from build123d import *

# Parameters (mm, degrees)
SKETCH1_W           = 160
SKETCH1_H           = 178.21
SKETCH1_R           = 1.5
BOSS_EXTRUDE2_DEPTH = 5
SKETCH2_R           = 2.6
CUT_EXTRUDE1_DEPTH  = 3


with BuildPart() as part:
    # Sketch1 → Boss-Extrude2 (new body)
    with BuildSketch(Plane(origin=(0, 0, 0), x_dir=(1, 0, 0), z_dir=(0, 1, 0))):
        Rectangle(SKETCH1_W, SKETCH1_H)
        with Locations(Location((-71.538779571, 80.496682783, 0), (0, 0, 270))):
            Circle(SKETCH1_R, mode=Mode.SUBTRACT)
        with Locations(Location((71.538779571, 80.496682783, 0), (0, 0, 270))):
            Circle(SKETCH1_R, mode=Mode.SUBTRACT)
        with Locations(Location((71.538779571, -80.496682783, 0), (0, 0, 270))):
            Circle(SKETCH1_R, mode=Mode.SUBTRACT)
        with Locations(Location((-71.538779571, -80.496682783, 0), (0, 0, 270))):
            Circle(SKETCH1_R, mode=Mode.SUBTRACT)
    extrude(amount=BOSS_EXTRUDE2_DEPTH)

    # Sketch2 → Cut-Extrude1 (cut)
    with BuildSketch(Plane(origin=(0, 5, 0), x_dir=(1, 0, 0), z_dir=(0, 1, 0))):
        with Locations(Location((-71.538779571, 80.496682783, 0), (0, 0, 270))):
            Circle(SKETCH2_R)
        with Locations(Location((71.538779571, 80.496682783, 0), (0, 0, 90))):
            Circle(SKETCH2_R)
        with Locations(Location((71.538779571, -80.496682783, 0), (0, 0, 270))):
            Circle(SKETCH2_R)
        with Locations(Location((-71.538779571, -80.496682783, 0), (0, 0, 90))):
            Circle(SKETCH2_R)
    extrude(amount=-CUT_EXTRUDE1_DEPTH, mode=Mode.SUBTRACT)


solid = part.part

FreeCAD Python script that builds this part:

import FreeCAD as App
import Part
import Sketcher
from FreeCAD import Vector
Q = App.Units.Quantity

doc = App.newDocument("Part")
body = doc.addObject("PartDesign::Body", "Body")

sketch1 = body.newObject("Sketcher::SketchObject", "Sketch")
sketch1.AttachmentSupport = (doc.getObject("XZ_Plane"), [""])
sketch1.MapMode = "FlatFace"
sketch1.addGeometry(Part.LineSegment(Vector(-80, -89.1, 0), Vector(-80, 89.1, 0)), False)
sketch1.addGeometry(Part.LineSegment(Vector(-80, 89.1, 0), Vector(80, 89.1, 0)), False)
sketch1.addGeometry(Part.LineSegment(Vector(80, 89.1, 0), Vector(80, -89.1, 0)), False)
sketch1.addGeometry(Part.LineSegment(Vector(80, -89.1, 0), Vector(-80, -89.1, 0)), False)
sketch1.addGeometry(Part.Circle(Vector(-71.5, 80.5, 0), Vector(0, 0, 1), 1.5), False)
sketch1.addGeometry(Part.Circle(Vector(71.5, 80.5, 0), Vector(0, 0, 1), 1.5), False)
sketch1.addGeometry(Part.Circle(Vector(-71.5, -80.5, 0), Vector(0, 0, 1), 1.5), False)
sketch1.addGeometry(Part.Circle(Vector(71.5, -80.5, 0), Vector(0, 0, 1), 1.5), False)
sketch1.addConstraint(Sketcher.Constraint("Coincident", 0, 2, 1, 1))
sketch1.addConstraint(Sketcher.Constraint("Coincident", 1, 2, 2, 1))
sketch1.addConstraint(Sketcher.Constraint("Coincident", 2, 2, 3, 1))
sketch1.addConstraint(Sketcher.Constraint("Coincident", 3, 2, 0, 1))
sketch1.addConstraint(Sketcher.Constraint("Vertical", 0))
sketch1.addConstraint(Sketcher.Constraint("Horizontal", 1))
sketch1.addConstraint(Sketcher.Constraint("Vertical", 2))
sketch1.addConstraint(Sketcher.Constraint("Horizontal", 3))
sketch1.addConstraint(Sketcher.Constraint("Equal", 4, 5))
sketch1.addConstraint(Sketcher.Constraint("Equal", 5, 6))
sketch1.addConstraint(Sketcher.Constraint("Equal", 6, 7))
sketch1.addConstraint(Sketcher.Constraint("Symmetric", 5, 3, 6, 3, -1, 1))
sketch1.addConstraint(Sketcher.Constraint("Symmetric", 4, 3, 7, 3, -1, 1))
sketch1.addConstraint(Sketcher.Constraint("Symmetric", 0, 2, 2, 2, -1, 1))
sketch1.addConstraint(Sketcher.Constraint("Symmetric", 4, 3, 5, 3, -2))
sketch1.addConstraint(Sketcher.Constraint("Diameter", 4, Q("3 mm")))
sketch1.addConstraint(Sketcher.Constraint("DistanceX", 1, 1, 1, 2, Q("160 mm")))
sketch1.addConstraint(Sketcher.Constraint("DistanceY", 0, 1, 0, 2, Q("178.21 mm")))
sketch1.addConstraint(Sketcher.Constraint("DistanceX", 4, 3, -1, 1, Q("71.53878 mm")))
sketch1.addConstraint(Sketcher.Constraint("DistanceY", -1, 1, 4, 3, Q("80.496683 mm")))
pad1 = body.newObject("PartDesign::Pad", "Pad")
pad1.Profile = sketch1
pad1.Length = 5
pad1.Reversed = True

sketch2 = body.newObject("Sketcher::SketchObject", "Sketch001")
sketch2.AttachmentSupport = (doc.getObject("XZ_Plane"), [""])
sketch2.MapMode = "FlatFace"
sketch2.AttachmentOffset = App.Placement(Vector(0, 0, -5), App.Rotation())
sketch2.addGeometry(Part.Circle(Vector(-71.5, -80.5, 0), Vector(0, 0, 1), 2.6), False)
sketch2.addGeometry(Part.Circle(Vector(71.5, -80.5, 0), Vector(0, 0, 1), 2.6), False)
sketch2.addGeometry(Part.Circle(Vector(71.5, 80.5, 0), Vector(0, 0, 1), 2.6), False)
sketch2.addGeometry(Part.Circle(Vector(-71.5, 80.5, 0), Vector(0, 0, 1), 2.6), False)
sketch2.addConstraint(Sketcher.Constraint("Equal", 0, 1))
sketch2.addConstraint(Sketcher.Constraint("Equal", 1, 2))
sketch2.addConstraint(Sketcher.Constraint("Equal", 2, 3))
sketch2.addConstraint(Sketcher.Constraint("Symmetric", 0, 3, 2, 3, -1, 1))
sketch2.addConstraint(Sketcher.Constraint("Symmetric", 1, 3, 3, 3, -1, 1))
sketch2.addConstraint(Sketcher.Constraint("Symmetric", 0, 3, 1, 3, -2))
sketch2.addConstraint(Sketcher.Constraint("Diameter", 0, Q("5.2 mm")))
sketch2.addConstraint(Sketcher.Constraint("DistanceX", 0, 3, -1, 1, Q("71.53878 mm")))
sketch2.addConstraint(Sketcher.Constraint("DistanceY", 0, 3, -1, 1, Q("80.496683 mm")))
pocket1 = body.newObject("PartDesign::Pocket", "Pocket")
pocket1.Profile = sketch2
pocket1.Length = 3
pocket1.Reversed = True

doc.recompute()
